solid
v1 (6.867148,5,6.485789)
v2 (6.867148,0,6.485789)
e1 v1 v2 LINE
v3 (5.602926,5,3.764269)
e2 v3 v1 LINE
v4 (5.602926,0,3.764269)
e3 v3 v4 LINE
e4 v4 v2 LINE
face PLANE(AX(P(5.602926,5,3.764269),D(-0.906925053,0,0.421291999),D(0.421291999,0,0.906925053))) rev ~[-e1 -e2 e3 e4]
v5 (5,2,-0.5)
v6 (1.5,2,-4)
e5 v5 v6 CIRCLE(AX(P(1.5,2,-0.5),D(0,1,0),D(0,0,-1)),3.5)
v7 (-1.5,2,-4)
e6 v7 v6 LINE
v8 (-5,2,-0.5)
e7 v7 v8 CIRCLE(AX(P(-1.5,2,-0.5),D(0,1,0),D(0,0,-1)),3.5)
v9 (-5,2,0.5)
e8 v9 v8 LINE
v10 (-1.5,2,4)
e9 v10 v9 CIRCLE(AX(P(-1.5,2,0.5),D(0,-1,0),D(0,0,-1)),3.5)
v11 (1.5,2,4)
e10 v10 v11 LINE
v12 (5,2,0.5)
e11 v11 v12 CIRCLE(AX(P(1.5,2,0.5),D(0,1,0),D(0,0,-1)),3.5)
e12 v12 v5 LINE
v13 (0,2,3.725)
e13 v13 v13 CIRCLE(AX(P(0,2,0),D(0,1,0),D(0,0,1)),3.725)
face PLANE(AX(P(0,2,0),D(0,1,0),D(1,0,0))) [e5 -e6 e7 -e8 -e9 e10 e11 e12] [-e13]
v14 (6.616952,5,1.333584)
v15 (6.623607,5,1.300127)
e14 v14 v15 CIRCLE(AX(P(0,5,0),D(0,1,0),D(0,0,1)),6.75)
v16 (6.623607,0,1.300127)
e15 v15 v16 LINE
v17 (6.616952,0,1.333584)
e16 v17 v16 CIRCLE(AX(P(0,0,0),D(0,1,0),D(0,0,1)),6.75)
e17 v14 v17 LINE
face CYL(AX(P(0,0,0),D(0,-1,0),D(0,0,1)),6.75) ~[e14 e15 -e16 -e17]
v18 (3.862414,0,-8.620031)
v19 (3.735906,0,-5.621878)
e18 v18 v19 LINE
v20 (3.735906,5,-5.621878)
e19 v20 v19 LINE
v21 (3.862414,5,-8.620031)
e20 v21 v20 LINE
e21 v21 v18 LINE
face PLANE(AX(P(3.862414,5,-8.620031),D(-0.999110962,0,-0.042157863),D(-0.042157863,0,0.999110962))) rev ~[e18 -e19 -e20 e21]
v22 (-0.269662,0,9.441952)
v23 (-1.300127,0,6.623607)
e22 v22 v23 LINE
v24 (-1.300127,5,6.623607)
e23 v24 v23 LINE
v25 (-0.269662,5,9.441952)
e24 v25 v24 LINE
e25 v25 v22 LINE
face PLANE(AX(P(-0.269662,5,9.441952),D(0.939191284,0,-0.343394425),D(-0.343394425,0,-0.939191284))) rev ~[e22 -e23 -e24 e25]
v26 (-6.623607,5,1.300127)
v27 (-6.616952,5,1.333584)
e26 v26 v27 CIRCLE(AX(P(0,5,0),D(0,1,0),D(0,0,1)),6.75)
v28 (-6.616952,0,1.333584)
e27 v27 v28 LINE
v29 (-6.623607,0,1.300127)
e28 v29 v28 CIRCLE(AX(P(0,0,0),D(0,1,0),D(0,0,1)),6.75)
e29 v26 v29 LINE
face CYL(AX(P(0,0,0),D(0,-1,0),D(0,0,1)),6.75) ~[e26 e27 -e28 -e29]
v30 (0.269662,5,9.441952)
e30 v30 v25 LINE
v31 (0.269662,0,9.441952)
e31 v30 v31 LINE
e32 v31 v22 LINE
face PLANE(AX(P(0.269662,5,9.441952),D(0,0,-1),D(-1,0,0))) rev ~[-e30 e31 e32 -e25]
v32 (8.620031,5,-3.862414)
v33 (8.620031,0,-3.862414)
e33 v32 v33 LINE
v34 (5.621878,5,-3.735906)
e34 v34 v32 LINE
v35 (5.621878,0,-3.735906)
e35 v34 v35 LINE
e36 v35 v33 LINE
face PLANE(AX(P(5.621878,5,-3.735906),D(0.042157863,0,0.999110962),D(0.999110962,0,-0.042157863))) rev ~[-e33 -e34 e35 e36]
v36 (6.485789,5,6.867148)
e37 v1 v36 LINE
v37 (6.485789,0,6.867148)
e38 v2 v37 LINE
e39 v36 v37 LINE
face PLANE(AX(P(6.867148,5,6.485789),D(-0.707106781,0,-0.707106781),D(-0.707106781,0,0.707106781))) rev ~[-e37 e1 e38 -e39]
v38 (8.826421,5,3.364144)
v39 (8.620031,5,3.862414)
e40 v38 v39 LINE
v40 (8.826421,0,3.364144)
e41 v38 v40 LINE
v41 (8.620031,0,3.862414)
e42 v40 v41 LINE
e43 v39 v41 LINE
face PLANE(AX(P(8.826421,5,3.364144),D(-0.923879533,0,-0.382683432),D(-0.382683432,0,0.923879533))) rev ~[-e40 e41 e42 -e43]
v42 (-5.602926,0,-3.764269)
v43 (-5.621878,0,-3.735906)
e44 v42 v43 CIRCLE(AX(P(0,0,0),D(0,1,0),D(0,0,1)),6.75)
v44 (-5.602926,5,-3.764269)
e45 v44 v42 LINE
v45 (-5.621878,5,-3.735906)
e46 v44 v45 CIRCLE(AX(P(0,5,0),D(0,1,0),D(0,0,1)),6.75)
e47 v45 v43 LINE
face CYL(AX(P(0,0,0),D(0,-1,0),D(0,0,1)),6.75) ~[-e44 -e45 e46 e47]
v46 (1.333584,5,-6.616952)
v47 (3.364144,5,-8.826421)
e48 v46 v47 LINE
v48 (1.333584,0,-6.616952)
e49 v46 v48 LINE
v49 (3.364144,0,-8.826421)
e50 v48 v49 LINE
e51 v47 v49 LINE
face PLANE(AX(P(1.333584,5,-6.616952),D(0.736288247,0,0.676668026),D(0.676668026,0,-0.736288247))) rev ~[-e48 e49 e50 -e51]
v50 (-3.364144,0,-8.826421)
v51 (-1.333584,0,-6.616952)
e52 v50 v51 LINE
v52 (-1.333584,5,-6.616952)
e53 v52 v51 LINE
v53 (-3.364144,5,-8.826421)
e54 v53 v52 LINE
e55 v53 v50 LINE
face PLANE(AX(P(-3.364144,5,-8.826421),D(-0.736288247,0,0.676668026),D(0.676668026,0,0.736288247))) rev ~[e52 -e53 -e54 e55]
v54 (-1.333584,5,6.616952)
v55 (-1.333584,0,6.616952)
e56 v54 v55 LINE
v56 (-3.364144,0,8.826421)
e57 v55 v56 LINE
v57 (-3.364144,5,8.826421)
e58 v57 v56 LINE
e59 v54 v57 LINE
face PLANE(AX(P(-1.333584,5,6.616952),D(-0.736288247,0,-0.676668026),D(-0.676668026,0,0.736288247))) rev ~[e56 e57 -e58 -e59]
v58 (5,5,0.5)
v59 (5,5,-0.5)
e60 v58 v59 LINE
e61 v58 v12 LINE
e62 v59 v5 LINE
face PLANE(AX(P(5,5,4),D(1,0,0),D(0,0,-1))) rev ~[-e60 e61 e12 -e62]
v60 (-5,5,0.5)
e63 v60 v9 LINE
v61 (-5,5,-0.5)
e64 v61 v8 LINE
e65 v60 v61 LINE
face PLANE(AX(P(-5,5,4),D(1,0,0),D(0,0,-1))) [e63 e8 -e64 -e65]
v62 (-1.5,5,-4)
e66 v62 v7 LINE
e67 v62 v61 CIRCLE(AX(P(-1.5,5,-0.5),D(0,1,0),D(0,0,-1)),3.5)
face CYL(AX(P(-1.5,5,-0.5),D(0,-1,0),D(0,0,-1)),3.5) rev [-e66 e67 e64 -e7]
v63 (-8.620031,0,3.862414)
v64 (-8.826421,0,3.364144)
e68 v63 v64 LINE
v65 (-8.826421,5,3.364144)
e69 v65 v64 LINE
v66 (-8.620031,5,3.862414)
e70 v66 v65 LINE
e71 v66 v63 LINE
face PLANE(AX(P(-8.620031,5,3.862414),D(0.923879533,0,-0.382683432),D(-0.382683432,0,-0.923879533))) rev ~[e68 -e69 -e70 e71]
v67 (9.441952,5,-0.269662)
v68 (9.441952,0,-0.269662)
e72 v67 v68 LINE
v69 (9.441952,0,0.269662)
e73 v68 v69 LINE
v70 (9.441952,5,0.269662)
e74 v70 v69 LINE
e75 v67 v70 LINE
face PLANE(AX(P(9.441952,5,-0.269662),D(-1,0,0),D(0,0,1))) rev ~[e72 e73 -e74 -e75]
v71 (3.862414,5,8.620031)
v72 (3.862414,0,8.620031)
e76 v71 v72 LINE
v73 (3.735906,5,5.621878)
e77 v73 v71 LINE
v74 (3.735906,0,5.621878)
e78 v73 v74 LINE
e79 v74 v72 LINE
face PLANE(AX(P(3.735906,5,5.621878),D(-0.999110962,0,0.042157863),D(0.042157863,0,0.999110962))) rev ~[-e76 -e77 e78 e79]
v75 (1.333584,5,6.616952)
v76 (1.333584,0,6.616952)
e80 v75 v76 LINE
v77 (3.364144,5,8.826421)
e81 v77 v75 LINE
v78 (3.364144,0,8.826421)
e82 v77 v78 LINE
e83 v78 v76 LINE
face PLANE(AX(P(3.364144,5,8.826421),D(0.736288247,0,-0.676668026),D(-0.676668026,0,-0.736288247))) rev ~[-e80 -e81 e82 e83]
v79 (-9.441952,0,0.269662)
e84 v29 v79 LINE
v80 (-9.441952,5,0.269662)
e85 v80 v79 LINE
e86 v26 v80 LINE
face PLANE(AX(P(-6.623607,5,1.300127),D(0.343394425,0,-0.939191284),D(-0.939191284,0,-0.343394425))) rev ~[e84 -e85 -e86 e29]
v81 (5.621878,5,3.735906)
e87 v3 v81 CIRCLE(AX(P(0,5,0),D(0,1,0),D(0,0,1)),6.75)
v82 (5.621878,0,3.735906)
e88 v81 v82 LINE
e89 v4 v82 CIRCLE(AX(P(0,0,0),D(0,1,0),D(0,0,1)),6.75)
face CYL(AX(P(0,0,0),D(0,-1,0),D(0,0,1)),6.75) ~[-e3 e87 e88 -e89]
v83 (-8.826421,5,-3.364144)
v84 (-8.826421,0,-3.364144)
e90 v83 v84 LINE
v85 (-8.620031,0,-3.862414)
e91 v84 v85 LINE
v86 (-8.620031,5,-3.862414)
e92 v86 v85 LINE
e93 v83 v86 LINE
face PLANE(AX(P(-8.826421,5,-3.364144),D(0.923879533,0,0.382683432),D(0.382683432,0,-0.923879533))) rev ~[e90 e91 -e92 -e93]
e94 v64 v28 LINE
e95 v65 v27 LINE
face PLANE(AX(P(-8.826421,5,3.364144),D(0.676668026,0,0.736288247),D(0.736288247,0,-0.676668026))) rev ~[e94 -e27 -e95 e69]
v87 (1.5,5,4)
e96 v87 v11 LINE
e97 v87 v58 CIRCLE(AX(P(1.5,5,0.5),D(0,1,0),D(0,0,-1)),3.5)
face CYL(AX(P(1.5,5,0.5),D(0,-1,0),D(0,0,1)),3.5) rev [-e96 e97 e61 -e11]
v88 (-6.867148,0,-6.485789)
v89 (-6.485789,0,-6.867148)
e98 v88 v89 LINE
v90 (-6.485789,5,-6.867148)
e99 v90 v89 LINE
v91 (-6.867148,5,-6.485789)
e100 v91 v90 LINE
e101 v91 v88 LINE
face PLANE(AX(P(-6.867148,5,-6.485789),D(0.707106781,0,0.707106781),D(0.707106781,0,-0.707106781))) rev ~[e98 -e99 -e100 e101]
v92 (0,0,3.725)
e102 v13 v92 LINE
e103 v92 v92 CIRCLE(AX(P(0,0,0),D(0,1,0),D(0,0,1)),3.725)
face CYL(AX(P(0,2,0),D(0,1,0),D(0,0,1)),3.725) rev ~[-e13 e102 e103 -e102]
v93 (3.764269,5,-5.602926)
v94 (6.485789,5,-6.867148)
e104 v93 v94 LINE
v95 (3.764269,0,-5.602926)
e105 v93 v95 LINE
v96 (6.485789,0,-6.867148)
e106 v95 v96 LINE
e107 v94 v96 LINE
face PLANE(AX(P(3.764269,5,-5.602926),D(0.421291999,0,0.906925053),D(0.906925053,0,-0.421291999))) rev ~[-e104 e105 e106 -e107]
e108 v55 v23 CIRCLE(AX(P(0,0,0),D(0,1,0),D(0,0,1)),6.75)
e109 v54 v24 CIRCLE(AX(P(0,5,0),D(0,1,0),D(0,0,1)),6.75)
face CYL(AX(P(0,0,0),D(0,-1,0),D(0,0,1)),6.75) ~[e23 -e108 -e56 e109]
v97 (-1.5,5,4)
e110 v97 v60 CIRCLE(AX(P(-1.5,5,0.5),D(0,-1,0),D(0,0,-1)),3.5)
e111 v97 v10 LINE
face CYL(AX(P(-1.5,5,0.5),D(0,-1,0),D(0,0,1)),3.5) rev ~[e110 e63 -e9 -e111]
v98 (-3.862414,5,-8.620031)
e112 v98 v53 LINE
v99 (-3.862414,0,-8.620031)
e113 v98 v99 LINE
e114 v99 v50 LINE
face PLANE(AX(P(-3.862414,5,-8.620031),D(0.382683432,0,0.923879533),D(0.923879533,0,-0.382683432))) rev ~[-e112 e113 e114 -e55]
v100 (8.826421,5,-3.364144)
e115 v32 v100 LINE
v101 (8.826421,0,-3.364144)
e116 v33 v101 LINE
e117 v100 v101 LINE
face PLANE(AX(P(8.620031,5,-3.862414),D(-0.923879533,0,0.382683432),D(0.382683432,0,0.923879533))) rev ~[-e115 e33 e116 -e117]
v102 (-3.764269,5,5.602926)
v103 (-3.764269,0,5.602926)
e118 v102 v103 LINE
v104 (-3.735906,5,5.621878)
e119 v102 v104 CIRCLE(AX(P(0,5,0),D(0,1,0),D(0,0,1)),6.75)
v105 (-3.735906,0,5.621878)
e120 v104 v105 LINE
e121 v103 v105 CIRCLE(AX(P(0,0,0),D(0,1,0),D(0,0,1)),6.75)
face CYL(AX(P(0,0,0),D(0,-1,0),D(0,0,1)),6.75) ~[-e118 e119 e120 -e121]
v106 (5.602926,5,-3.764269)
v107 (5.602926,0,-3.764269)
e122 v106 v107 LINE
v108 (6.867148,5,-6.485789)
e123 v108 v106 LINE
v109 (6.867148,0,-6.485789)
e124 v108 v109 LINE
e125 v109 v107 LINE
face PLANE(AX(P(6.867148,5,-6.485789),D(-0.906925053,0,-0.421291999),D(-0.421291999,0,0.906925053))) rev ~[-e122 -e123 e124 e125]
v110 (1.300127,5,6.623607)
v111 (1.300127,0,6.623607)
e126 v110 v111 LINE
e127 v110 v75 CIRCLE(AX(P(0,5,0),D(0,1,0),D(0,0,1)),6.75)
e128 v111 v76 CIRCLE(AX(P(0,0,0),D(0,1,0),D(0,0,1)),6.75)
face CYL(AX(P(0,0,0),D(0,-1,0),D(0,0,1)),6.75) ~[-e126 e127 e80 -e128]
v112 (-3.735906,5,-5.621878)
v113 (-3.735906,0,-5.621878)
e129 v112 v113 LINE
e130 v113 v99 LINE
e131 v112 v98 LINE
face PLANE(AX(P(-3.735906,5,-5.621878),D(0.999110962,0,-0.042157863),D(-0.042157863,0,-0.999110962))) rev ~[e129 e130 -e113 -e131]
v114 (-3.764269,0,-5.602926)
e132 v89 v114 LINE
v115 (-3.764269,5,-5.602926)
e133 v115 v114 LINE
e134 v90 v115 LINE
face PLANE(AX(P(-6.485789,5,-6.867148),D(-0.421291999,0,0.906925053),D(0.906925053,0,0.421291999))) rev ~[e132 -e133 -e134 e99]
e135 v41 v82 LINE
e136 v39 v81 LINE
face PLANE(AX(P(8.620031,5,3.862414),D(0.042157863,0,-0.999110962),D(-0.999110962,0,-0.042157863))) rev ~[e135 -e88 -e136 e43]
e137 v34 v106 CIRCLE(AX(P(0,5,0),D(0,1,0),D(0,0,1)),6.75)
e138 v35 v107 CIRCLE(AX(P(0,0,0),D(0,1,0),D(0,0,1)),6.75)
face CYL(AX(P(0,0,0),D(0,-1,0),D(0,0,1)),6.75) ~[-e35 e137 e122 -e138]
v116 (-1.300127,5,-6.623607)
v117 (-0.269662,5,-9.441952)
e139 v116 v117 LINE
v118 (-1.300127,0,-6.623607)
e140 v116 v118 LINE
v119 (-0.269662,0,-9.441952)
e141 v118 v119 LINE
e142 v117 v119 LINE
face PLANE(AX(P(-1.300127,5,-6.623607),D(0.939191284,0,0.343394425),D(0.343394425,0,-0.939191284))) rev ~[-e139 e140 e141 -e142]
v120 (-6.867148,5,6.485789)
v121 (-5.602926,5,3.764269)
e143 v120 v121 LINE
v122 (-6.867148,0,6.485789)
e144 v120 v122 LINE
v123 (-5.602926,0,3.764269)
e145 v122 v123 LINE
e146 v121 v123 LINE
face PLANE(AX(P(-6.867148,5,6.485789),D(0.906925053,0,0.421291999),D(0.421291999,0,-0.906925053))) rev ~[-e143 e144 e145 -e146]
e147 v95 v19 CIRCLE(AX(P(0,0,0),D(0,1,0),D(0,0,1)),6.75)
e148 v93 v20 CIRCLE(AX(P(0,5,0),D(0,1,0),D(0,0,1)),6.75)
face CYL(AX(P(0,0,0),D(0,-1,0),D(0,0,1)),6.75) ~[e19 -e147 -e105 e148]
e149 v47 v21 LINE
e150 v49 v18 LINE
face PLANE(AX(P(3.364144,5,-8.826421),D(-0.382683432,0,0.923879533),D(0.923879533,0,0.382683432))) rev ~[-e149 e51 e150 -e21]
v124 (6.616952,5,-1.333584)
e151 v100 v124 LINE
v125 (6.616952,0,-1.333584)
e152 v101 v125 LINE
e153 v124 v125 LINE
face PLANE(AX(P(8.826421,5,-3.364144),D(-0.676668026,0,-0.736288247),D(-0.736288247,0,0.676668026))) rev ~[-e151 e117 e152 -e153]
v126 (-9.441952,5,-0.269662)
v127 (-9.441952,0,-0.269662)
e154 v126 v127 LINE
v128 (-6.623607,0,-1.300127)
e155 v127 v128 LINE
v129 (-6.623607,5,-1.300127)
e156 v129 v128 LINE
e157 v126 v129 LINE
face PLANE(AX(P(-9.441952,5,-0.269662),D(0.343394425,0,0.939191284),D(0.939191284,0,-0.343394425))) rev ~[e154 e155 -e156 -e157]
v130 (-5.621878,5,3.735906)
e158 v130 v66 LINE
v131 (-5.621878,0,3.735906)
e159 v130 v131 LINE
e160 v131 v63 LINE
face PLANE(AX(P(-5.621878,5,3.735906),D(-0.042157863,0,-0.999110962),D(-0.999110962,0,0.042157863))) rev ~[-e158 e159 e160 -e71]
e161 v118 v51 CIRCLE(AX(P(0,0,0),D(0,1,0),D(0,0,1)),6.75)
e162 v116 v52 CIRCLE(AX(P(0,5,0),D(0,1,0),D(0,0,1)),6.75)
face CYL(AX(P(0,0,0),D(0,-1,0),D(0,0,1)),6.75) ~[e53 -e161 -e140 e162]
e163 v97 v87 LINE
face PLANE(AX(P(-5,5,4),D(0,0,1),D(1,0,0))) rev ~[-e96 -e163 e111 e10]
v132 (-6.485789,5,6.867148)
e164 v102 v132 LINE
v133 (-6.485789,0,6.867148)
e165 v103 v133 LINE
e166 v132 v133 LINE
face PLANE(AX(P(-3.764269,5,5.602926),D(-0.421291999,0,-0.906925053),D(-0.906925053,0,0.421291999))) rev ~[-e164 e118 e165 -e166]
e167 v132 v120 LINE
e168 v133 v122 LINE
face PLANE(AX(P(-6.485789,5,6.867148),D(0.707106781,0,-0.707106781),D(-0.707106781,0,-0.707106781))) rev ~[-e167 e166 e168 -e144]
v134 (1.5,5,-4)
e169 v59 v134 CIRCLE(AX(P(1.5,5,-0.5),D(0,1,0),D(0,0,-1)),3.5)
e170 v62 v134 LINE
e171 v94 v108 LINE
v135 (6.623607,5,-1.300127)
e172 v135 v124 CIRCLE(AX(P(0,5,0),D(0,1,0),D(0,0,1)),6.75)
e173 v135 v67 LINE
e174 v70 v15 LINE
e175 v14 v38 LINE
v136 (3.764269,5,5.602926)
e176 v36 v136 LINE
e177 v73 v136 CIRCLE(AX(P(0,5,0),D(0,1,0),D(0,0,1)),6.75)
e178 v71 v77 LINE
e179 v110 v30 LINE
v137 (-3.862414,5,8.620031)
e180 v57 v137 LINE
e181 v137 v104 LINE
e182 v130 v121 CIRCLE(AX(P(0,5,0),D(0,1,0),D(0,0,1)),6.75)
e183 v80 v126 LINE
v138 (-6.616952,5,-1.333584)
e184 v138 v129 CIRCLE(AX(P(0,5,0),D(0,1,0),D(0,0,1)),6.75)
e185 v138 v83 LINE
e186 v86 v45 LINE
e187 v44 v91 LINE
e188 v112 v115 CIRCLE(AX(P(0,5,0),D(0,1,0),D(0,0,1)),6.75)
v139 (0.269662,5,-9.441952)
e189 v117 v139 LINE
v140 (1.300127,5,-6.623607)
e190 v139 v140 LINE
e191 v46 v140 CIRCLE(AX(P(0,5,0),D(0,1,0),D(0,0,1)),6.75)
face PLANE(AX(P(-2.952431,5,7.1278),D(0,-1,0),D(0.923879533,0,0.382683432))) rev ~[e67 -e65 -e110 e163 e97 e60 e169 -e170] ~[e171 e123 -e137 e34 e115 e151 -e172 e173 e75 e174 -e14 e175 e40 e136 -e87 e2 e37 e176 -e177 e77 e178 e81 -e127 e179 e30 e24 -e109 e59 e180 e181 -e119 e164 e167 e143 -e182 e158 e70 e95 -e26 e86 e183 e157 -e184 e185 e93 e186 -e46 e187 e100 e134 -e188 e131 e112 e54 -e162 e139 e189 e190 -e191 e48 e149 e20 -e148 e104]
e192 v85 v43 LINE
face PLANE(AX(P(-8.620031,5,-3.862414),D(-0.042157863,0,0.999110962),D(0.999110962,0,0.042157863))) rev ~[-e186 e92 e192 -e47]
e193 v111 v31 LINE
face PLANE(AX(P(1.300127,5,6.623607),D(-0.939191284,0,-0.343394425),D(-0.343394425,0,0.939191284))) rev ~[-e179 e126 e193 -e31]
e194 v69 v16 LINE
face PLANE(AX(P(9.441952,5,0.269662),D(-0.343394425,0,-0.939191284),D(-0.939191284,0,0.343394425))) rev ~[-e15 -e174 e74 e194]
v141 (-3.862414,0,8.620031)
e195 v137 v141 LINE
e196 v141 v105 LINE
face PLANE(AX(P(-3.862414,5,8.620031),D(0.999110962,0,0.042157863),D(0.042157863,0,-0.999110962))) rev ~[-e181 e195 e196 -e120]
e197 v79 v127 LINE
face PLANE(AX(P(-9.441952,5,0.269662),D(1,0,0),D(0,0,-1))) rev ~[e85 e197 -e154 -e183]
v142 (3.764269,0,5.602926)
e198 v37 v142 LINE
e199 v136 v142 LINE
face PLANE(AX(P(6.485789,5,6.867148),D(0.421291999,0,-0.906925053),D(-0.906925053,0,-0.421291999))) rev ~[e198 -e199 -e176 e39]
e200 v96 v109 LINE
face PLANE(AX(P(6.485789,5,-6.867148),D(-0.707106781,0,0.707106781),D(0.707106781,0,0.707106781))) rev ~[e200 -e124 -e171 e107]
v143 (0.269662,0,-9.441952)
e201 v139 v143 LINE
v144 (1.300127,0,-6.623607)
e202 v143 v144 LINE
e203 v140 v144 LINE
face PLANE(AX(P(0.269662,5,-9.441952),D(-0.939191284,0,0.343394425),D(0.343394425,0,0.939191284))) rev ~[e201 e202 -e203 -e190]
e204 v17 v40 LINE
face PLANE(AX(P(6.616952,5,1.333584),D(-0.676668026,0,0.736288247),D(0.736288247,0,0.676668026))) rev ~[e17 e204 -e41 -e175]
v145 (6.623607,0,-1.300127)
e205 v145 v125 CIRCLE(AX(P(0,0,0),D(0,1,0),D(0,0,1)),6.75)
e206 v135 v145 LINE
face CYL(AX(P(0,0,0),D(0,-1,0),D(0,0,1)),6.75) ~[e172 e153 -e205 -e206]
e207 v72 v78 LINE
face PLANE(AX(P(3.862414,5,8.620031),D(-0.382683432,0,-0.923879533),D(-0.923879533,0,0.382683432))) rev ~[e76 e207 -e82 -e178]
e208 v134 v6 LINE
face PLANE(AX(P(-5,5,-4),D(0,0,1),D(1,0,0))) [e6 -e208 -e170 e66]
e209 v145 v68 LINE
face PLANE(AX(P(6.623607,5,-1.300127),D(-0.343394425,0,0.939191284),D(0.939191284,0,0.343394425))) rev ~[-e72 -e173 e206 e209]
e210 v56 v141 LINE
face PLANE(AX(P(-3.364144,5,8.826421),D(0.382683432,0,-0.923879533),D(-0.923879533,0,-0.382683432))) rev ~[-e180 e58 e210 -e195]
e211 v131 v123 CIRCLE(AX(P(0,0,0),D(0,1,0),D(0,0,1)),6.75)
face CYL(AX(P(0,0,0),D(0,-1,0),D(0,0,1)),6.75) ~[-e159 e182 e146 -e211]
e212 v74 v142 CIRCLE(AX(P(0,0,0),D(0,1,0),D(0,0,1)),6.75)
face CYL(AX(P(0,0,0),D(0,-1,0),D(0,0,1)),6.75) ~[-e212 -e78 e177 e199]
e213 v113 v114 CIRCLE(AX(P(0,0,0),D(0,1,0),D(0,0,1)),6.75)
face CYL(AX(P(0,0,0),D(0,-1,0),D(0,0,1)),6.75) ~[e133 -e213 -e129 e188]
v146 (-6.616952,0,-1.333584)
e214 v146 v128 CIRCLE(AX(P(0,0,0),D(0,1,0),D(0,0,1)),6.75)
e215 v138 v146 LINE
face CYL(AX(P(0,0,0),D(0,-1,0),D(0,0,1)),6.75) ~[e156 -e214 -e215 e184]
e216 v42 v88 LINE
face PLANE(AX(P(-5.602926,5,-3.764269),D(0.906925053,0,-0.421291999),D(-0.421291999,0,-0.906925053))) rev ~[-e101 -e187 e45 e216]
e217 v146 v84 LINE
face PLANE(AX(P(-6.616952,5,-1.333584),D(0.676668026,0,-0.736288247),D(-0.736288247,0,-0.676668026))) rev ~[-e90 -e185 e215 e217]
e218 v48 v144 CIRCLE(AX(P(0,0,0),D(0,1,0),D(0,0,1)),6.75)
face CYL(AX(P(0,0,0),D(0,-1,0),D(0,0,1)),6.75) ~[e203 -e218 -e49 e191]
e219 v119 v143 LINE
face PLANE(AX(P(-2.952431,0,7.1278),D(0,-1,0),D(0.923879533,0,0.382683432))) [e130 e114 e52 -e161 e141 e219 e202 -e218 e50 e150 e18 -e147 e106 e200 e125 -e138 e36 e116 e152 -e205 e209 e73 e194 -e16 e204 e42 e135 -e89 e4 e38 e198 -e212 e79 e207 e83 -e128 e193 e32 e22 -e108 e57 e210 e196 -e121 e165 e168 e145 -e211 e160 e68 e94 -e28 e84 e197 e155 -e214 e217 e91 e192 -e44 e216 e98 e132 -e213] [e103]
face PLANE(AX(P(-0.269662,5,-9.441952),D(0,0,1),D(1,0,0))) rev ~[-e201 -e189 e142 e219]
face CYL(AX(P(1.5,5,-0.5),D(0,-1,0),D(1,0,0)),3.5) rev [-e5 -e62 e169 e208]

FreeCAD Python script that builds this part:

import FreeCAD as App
import Part
import Sketcher

V = App.Vector


def edges_at(feature, points):
    """Names of the edges that pass closest to the given points."""
    edges = feature.Shape.Edges
    near = lambda p: min(range(len(edges)), key=lambda i: edges[i].distToShape(Part.Vertex(*p))[0])
    return sorted({f"Edge{near(p) + 1}" for p in points})


def add_polygon(sketch, points):
    """Adds a closed chain of lines whose ends are joined by coincident constraints."""
    first, n = sketch.GeometryCount, len(points)
    for a, b in zip(points, points[1:] + points[:1]):
        sketch.addGeometry(Part.LineSegment(App.Vector(*a, 0), App.Vector(*b, 0)), False)
    for i in range(n):
        sketch.addConstraint(Sketcher.Constraint("Coincident", first + i, 2, first + (i + 1) % n, 1))

doc = App.newDocument("Part")
body = doc.addObject("PartDesign::Body", "Body")

# Sketch on XZ plane
sketch1 = body.newObject("Sketcher::SketchObject", "Sketch")
sketch1.AttachmentSupport = (doc.getObject("XZ_Plane"), [""])
sketch1.MapMode = "FlatFace"
sketch1.addGeometry(Part.Circle(V(0, 0, 0), V(0, 0, 1), 7), False)
sketch1.addConstraint([
    Sketcher.Constraint("Coincident", 0, 3, -1, 1),
    Sketcher.Constraint("Diameter", 0, 13.5),
])
pad1 = body.newObject("PartDesign::Pad", "Pad")
pad1.Profile = sketch1
pad1.Length = 5
pad1.Reversed = True

# Sketch on XZ plane
sketch2 = body.newObject("Sketcher::SketchObject", "Sketch001")
sketch2.AttachmentSupport = (doc.getObject("XZ_Plane"), [""])
sketch2.MapMode = "FlatFace"
sketch2.AttachmentOffset = App.Placement(V(0, 0, -5), App.Rotation())
add_polygon(sketch2, [(-5, -4), (-5, 4), (5, 4), (5, -4)])  # lines 0-3
sketch2.addConstraint([
    Sketcher.Constraint("Vertical", 0),
    Sketcher.Constraint("Horizontal", 1),
    Sketcher.Constraint("Vertical", 2),
    Sketcher.Constraint("Horizontal", 3),
    Sketcher.Constraint("Symmetric", 0, 2, 2, 2, -1, 1),
    Sketcher.Constraint("DistanceX", 1, 1, 1, 2, 10.0),
    Sketcher.Constraint("DistanceY", 0, 1, 0, 2, 8.0),
])
pocket1 = body.newObject("PartDesign::Pocket", "Pocket")
pocket1.Profile = sketch2
pocket1.Length = 3
pocket1.Reversed = True
doc.recompute()

fillet = body.newObject("PartDesign::Fillet", "Fillet")
fillet.Base = (pocket1, edges_at(pocket1, [
    (5, 3.5, -4),
    (5, 3.5, 4),
    (-5, 3.5, 4),
    (-5, 3.5, -4),
]))
fillet.Radius = 3.5

# Sketch on XZ plane
sketch3 = body.newObject("Sketcher::SketchObject", "Sketch002")
sketch3.AttachmentSupport = (doc.getObject("XZ_Plane"), [""])
sketch3.MapMode = "FlatFace"
sketch3.AttachmentOffset = App.Placement(V(0, 0, -2), App.Rotation())
sketch3.addGeometry(Part.Circle(V(0, 0, 0), V(0, 0, 1), 3.7), False)
sketch3.addConstraint([
    Sketcher.Constraint("Coincident", 0, 3, -1, 1),
    Sketcher.Constraint("Diameter", 0, 7.45),
])
pocket2 = body.newObject("PartDesign::Pocket", "Pocket001")
pocket2.Profile = sketch3
pocket2.Type = "ThroughAll"
pocket2.Reversed = True

# Sketch on XZ plane
sketch4 = body.newObject("Sketcher::SketchObject", "Sketch003")
sketch4.AttachmentSupport = (doc.getObject("XZ_Plane"), [""])
sketch4.MapMode = "FlatFace"
sketch4.AttachmentOffset = App.Placement(V(0, 0, -5), App.Rotation())
add_polygon(sketch4, [(-0.3, -9.4), (-1.3, -6.6), (1.3, -6.6), (0.3, -9.4)])  # lines 0-3
add_polygon(sketch4, [(-1.3, 6.6), (-0.3, 9.4), (0.3, 9.4), (1.3, 6.6)])  # lines 4-7
sketch4.addConstraint([
    Sketcher.Constraint("Horizontal", 1),
    Sketcher.Constraint("Horizontal", 3),
    Sketcher.Constraint("Horizontal", 5),
    Sketcher.Constraint("Horizontal", 7),
    Sketcher.Constraint("Symmetric", 2, 2, 4, 2, -1, 1),
    Sketcher.Constraint("Symmetric", 0, 2, 6, 2, -1, 1),
    Sketcher.Constraint("Parallel", 2, 4),
    Sketcher.Constraint("Parallel", 0, 6),
    Sketcher.Constraint("Vertical", 3, 2, 4, 2),
    Sketcher.Constraint("Vertical", 1, 2, 6, 2),
    Sketcher.Constraint("Distance", 0, 3.000821),
    Sketcher.Constraint("DistanceX", 1, 1, 1, 2, 2.600254),
    Sketcher.Constraint("DistanceX", 3, 2, 3, 1, 0.539324),
    Sketcher.Constraint("DistanceY", 0, 2, 4, 2, 16.065559),
])
pad2 = body.newObject("PartDesign::Pad", "Pad001")
pad2.Profile = sketch4
pad2.Length = 5
doc.recompute()

polarpattern = body.newObject("PartDesign::PolarPattern", "PolarPattern")
polarpattern.Originals = [pad2]
polarpattern.Axis = (doc.getObject("Y_Axis"), [""])
polarpattern.Angle = 360
polarpattern.Occurrences = 16
body.Tip = polarpattern

doc.recompute()
